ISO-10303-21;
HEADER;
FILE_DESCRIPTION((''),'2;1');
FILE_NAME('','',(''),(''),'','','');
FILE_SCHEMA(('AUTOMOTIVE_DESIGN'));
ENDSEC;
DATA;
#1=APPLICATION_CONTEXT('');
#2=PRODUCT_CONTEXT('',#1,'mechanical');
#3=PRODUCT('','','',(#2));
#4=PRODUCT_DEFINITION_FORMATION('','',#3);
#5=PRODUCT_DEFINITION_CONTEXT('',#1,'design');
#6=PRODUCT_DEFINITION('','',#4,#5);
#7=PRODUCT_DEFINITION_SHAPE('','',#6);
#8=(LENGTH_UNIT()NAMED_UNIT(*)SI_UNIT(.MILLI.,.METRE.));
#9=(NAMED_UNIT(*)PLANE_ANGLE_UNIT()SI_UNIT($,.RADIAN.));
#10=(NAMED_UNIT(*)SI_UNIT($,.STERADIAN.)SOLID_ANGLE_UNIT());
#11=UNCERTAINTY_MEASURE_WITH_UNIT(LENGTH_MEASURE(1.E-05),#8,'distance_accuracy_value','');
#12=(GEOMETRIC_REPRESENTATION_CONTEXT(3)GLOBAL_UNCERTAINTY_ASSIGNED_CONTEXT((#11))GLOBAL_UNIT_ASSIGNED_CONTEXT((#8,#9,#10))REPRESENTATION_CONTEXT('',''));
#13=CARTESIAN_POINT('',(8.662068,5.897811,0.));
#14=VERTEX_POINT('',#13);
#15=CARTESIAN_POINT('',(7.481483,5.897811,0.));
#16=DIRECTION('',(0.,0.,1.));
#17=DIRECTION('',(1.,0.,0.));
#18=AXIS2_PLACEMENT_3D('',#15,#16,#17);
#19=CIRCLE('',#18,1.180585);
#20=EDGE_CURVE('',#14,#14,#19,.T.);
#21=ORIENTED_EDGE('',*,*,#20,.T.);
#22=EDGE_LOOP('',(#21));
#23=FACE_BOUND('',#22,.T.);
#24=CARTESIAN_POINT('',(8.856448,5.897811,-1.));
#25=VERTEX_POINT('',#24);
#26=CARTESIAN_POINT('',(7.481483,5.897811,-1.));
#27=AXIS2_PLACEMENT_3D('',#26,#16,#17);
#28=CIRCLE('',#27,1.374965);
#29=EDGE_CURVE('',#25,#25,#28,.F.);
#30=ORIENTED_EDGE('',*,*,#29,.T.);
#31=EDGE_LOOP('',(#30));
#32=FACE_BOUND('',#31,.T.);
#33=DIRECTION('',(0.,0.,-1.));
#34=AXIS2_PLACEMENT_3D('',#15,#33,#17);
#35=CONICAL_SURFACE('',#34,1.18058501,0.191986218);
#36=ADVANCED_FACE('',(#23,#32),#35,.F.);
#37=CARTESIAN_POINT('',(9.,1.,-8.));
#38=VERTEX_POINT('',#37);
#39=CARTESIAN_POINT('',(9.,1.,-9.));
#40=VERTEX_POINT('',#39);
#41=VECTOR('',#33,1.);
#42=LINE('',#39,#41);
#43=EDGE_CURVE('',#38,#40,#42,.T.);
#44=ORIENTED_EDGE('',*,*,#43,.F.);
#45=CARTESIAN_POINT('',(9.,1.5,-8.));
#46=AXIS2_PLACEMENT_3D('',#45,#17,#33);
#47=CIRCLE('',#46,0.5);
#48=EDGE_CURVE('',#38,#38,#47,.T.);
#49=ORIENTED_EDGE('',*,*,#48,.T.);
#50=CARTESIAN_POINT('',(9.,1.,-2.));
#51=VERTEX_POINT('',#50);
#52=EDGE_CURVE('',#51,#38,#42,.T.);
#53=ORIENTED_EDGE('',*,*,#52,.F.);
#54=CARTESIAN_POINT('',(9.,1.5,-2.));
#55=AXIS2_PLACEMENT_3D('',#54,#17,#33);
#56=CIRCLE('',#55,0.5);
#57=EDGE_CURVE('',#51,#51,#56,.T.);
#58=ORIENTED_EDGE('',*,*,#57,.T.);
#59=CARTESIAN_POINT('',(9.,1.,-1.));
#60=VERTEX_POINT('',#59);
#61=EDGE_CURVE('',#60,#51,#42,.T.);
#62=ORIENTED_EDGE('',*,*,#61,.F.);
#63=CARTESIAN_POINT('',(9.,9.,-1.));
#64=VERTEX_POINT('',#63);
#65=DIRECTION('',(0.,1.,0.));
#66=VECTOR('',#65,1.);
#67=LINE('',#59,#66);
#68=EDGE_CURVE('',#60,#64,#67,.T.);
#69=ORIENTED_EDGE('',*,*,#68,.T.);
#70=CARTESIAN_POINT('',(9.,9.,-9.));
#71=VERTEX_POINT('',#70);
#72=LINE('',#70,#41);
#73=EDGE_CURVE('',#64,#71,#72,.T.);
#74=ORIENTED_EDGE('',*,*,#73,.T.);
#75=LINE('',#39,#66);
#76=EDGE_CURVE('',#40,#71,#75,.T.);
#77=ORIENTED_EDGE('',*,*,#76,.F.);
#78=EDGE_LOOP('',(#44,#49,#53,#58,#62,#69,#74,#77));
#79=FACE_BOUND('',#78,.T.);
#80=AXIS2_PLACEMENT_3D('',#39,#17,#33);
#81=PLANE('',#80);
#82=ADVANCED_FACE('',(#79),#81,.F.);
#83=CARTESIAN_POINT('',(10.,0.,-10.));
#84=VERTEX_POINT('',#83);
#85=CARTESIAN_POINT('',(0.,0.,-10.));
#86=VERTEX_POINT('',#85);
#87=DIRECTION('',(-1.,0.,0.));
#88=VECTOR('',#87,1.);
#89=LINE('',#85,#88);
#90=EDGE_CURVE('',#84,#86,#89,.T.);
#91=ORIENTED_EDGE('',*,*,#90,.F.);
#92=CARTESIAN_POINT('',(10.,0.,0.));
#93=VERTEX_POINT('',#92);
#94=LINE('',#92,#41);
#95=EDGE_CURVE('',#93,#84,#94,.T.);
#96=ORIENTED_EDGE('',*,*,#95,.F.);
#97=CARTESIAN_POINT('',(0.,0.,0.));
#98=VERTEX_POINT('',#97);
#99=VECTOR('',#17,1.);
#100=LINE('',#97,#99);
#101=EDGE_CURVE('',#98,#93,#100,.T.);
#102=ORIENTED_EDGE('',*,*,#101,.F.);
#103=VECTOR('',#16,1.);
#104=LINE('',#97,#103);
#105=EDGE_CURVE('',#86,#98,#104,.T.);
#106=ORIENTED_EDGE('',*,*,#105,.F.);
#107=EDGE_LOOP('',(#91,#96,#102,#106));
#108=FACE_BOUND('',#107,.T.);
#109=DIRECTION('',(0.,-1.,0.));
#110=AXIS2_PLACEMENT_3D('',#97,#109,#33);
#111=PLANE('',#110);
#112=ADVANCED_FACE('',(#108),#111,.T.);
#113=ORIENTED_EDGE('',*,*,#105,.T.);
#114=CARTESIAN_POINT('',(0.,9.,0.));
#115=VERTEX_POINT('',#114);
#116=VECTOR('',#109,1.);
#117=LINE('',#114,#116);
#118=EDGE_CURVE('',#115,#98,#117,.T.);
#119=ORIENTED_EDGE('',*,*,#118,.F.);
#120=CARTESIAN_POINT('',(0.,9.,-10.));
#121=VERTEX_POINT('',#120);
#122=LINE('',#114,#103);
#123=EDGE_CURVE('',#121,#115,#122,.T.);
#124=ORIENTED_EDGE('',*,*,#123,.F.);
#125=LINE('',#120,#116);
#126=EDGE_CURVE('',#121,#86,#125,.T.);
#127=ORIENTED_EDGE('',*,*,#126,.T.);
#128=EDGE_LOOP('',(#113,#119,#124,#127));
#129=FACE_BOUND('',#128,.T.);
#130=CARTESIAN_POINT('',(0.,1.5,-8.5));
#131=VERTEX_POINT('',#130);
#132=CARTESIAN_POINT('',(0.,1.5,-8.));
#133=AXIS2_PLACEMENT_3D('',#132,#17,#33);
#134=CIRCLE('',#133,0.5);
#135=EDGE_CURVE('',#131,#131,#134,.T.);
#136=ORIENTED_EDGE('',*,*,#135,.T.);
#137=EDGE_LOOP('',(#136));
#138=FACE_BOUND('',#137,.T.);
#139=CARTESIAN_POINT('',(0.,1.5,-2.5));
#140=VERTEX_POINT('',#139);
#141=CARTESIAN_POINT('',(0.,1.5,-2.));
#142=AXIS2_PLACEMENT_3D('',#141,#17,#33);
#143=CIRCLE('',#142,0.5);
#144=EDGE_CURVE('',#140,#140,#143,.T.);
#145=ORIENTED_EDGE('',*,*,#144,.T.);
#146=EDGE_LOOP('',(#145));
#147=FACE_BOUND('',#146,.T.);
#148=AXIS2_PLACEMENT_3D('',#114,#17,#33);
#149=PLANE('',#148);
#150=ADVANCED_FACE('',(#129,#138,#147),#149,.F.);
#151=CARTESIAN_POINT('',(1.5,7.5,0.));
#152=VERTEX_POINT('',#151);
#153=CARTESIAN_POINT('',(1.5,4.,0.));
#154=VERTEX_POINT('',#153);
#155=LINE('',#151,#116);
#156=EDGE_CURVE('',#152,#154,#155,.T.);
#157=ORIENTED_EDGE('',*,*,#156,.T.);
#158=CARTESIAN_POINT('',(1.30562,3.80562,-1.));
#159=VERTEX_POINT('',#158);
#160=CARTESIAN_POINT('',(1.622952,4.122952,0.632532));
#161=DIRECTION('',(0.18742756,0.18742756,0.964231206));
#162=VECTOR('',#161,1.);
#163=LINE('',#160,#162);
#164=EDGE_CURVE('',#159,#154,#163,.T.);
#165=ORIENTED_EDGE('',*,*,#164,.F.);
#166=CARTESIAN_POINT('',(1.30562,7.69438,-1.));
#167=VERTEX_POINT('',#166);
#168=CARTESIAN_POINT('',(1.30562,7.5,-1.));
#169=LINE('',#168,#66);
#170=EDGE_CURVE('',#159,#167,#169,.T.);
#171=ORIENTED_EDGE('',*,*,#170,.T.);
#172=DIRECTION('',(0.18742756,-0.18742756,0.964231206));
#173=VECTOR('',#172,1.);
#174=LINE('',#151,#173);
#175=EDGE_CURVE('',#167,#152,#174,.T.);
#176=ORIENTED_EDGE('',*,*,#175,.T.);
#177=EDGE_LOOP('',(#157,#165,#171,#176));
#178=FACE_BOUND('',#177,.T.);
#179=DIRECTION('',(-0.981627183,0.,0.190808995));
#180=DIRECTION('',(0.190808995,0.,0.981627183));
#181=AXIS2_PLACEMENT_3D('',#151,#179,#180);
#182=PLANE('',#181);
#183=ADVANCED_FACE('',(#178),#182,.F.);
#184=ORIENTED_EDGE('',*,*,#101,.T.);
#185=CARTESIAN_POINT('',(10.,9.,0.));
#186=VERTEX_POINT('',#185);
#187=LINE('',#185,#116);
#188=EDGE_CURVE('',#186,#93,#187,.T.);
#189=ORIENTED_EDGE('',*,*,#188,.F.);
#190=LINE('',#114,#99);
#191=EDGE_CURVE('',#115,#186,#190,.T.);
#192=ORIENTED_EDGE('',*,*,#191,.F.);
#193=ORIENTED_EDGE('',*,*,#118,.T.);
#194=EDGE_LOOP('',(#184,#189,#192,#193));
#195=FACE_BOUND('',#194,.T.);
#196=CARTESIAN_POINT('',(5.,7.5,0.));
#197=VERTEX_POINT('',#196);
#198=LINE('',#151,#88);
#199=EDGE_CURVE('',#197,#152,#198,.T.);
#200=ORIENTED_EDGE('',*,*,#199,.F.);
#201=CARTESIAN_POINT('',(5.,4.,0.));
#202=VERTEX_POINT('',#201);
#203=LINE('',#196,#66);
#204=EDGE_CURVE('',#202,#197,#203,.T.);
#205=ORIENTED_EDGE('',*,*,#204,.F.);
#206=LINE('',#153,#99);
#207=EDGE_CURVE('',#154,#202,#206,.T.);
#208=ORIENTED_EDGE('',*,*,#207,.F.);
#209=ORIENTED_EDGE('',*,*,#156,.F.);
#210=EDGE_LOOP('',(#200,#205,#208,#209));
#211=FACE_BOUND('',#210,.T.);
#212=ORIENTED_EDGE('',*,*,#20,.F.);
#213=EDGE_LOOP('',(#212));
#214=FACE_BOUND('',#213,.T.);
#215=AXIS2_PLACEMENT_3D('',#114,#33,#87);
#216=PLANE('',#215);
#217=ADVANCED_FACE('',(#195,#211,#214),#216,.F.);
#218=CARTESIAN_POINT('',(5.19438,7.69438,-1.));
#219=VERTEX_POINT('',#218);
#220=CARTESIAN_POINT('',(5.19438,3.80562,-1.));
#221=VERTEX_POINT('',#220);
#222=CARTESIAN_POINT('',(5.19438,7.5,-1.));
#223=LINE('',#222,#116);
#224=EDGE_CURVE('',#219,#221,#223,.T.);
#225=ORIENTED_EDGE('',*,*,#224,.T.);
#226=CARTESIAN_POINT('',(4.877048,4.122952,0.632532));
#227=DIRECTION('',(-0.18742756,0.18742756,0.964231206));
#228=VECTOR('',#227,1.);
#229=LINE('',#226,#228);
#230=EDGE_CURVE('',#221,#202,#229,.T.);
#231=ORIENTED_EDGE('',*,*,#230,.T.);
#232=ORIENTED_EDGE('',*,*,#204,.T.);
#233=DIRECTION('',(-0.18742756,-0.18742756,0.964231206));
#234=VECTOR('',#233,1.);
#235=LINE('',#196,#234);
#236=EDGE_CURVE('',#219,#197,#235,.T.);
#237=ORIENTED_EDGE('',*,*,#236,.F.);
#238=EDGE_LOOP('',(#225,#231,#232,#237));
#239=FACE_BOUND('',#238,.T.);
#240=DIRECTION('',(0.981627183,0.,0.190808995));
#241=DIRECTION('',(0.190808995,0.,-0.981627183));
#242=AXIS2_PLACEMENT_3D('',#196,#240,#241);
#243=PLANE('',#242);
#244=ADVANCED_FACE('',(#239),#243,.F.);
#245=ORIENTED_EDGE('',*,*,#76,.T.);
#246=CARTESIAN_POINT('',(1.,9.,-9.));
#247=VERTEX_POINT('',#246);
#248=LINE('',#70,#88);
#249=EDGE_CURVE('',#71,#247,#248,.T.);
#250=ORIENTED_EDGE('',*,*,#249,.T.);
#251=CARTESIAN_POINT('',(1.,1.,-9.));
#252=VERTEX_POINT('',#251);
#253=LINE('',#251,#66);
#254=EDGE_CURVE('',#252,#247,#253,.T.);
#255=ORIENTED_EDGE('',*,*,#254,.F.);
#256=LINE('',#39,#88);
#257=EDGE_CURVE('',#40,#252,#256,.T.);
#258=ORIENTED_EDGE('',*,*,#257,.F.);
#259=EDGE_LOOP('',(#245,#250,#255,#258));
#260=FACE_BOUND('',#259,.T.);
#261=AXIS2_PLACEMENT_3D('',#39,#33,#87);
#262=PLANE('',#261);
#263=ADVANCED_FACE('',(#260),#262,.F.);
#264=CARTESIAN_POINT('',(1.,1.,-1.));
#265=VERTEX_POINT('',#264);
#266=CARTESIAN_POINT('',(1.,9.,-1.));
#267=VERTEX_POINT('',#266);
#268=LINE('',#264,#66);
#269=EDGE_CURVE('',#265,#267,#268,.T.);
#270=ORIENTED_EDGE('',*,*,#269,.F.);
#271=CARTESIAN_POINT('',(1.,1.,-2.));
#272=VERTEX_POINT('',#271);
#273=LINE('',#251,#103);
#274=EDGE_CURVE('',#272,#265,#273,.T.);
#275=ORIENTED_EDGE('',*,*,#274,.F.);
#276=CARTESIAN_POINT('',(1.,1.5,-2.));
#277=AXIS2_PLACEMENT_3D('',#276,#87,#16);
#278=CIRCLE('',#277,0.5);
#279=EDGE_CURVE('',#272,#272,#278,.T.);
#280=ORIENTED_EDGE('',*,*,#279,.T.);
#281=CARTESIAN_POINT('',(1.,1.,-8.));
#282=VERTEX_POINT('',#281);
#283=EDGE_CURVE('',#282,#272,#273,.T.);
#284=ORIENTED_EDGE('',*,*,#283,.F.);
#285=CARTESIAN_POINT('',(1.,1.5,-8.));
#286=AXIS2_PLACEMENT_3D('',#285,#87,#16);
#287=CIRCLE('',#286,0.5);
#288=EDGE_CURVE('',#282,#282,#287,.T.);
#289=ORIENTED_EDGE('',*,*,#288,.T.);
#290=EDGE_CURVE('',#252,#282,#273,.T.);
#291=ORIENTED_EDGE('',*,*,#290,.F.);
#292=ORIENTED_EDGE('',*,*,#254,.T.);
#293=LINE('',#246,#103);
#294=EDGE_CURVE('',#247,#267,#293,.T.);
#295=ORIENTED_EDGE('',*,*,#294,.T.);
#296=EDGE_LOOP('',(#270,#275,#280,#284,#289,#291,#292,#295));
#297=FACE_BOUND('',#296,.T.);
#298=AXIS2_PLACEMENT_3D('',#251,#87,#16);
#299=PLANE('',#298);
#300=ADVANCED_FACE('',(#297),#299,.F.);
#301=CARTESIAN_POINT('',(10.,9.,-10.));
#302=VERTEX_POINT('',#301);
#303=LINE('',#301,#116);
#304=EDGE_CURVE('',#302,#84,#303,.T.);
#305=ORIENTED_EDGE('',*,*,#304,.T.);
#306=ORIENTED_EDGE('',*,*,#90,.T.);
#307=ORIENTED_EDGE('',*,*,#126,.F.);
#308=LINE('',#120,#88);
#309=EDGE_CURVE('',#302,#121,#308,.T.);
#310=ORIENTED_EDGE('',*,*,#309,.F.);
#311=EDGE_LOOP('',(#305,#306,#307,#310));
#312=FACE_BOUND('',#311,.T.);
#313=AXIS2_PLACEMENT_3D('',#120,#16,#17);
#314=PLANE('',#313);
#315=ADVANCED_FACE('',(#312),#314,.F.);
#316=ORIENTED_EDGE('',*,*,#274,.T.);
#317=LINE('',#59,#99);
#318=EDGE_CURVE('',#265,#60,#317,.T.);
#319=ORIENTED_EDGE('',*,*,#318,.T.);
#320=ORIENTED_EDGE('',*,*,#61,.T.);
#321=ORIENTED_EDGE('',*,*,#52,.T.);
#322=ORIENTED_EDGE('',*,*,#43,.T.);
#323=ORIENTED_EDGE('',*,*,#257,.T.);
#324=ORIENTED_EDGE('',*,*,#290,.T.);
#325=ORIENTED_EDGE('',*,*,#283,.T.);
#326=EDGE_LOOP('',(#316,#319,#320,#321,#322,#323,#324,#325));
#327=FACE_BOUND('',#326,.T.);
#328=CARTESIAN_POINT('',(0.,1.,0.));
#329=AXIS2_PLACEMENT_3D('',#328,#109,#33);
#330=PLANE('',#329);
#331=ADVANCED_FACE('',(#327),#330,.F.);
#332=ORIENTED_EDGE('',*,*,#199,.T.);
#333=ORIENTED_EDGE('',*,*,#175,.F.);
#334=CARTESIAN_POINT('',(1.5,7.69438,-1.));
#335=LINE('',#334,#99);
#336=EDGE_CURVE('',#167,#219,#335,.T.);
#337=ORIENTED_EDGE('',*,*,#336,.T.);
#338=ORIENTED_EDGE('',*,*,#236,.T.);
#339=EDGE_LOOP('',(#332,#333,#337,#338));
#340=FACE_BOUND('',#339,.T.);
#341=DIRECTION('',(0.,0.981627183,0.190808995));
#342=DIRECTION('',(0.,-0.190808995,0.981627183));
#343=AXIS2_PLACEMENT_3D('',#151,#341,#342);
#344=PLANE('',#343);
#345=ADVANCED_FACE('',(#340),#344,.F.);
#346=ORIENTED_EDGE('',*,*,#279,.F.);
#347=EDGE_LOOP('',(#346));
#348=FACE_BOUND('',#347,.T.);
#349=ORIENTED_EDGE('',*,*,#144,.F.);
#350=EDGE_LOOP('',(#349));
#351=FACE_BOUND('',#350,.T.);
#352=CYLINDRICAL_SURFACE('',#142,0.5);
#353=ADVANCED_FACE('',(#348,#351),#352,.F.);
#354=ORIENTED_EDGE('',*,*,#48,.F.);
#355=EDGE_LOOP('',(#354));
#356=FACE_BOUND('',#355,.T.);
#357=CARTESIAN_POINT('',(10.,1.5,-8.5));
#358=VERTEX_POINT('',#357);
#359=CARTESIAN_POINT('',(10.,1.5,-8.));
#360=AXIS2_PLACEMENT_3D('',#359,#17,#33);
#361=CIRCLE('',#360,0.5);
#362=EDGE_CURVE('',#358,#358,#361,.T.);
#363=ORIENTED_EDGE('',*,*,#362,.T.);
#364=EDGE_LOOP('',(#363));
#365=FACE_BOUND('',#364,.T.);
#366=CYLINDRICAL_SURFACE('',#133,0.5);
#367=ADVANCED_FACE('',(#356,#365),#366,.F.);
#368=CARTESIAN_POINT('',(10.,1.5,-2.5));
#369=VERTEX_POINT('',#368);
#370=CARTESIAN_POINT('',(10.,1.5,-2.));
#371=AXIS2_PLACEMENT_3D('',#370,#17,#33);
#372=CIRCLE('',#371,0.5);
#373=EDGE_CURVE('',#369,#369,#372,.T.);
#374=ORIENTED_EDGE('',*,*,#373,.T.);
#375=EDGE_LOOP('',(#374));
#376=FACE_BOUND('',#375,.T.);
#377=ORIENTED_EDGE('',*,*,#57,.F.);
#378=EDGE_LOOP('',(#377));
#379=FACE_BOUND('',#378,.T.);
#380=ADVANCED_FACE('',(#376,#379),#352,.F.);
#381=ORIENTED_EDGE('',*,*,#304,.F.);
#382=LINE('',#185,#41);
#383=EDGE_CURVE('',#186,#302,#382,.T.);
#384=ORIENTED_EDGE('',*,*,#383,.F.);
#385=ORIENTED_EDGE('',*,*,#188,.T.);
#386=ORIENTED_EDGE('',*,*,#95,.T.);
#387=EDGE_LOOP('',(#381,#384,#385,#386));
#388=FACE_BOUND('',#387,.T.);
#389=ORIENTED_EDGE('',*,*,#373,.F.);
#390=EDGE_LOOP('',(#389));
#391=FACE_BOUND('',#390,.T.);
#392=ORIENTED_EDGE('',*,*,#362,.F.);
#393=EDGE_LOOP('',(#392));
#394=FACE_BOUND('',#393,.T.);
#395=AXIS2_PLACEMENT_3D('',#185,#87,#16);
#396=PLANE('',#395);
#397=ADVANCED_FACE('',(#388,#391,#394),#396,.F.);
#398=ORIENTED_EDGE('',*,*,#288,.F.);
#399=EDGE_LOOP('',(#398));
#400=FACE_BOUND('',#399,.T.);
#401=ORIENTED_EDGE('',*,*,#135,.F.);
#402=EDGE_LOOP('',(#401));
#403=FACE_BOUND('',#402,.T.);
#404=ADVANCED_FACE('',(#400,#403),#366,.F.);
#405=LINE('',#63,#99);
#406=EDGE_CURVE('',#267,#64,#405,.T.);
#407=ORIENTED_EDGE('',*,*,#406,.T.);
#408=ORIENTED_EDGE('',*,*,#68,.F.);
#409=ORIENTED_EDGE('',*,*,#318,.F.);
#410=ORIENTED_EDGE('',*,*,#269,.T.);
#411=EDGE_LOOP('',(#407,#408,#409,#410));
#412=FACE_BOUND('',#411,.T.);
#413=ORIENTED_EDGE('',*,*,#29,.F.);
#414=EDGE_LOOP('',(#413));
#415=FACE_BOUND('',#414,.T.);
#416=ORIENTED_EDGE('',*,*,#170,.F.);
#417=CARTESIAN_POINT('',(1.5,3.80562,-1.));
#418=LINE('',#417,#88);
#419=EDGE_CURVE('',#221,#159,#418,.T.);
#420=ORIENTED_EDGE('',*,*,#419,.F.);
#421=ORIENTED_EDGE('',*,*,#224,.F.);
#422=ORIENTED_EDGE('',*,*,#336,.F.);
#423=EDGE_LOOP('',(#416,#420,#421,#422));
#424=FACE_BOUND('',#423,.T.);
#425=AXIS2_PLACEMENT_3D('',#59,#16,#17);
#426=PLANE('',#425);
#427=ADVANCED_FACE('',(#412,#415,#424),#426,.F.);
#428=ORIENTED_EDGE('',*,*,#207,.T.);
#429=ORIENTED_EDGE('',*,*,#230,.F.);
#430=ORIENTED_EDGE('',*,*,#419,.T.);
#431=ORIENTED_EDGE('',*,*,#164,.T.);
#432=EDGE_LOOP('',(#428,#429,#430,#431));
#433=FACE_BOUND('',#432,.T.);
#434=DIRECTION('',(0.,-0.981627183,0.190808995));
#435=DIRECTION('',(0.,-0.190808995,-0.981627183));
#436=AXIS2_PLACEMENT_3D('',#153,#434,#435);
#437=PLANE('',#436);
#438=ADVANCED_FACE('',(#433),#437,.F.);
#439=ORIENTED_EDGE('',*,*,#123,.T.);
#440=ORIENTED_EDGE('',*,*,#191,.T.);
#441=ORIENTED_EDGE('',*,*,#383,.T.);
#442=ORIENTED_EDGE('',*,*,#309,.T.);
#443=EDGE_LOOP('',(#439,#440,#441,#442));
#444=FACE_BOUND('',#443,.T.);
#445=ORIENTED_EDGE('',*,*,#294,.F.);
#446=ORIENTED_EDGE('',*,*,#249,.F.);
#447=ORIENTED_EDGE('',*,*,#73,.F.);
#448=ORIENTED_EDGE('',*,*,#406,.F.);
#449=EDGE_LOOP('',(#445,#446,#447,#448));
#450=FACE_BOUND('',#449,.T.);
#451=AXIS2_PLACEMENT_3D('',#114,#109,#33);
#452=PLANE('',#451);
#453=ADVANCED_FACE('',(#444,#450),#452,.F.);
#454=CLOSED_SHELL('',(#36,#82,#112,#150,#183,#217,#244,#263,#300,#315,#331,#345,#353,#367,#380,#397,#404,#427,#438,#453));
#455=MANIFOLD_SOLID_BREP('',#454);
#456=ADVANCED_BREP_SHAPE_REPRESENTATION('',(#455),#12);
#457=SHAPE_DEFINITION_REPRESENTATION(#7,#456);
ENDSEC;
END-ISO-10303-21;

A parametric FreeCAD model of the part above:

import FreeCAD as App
import Part
import Sketcher
Q = App.Units.Quantity


def faces_at(feature, points):
    """Names of the faces that lie closest to the given points."""
    faces = feature.Shape.Faces
    near = lambda p: min(range(len(faces)), key=lambda i: faces[i].distToShape(Part.Vertex(*p))[0])
    return sorted({f"Face{near(p) + 1}" for p in points})


def add_polygon(sketch, points):
    """Adds a closed chain of lines whose ends are joined by coincident constraints."""
    first, n = sketch.GeometryCount, len(points)
    for a, b in zip(points, points[1:] + points[:1]):
        sketch.addGeometry(Part.LineSegment(App.Vector(*a, 0), App.Vector(*b, 0)), False)
    for i in range(n):
        sketch.addConstraint(Sketcher.Constraint("Coincident", first + i, 2, first + (i + 1) % n, 1))

doc = App.newDocument("Part")
body = doc.addObject("PartDesign::Body", "Body")

sketch1 = doc.addObject("Sketcher::SketchObject", "Sketch")
body.addObject(sketch1)
sketch1.AttachmentSupport = (doc.XZ_Plane, [""])
sketch1.MapMode = "FlatFace"
add_polygon(sketch1, [(0, -10), (0, 0), (10, 0), (10, -10)])
sketch1.addConstraint([
    Sketcher.Constraint("Vertical", 0),
    Sketcher.Constraint("Horizontal", 1),
    Sketcher.Constraint("Vertical", 2),
    Sketcher.Constraint("Horizontal", 3),
    Sketcher.Constraint("Coincident", 0, 2, -1, 1),
    Sketcher.Constraint("Equal", 3, 0),
    Sketcher.Constraint("DistanceX", 1, 1, 1, 2, Q("10 mm")),
])
pad1 = doc.addObject("PartDesign::Pad", "Pad")
body.addObject(pad1)
pad1.Profile = sketch1
pad1.Length = 9
pad1.Reversed = True
body2 = doc.addObject("PartDesign::Body", "Body001")

sketch2 = doc.addObject("Sketcher::SketchObject", "Sketch001")
body2.addObject(sketch2)
sketch2.AttachmentSupport = (doc.getObject("XY_Plane001"), [""])
sketch2.MapMode = "FlatFace"
sketch2.addGeometry(Part.Circle(App.Vector(7.5, 5.9, 0), App.Vector(0, 0, 1), 1.2), False)
sketch2.addConstraint([
    Sketcher.Constraint("Diameter", 0, Q("2.36117 mm")),
    Sketcher.Constraint("DistanceY", -1, 1, 0, 3, Q("5.897811 mm")),
    Sketcher.Constraint("DistanceX", -1, 1, 0, 3, Q("7.481483 mm")),
])
pad2 = doc.addObject("PartDesign::Pad", "Pad001")
body2.addObject(pad2)
pad2.Profile = sketch2
pad2.Length = 1.25
pad2.Reversed = True
doc.recompute()

draft = doc.addObject("PartDesign::Draft", "Draft")
body2.addObject(draft)
draft.Base = (pad2, faces_at(pad2, [(6.301, 5.898, -0.625)]))
draft.NeutralPlane = (doc.getObject("XY_Plane001"), [""])
draft.Angle = 11
draft.Reversed = False
doc.recompute()

boolean = doc.addObject("PartDesign::Boolean", "Boolean")
body.addObject(boolean)
boolean.Type = "Cut"
boolean.addObjects([body2])
body3 = doc.addObject("PartDesign::Body", "Body002")

sketch3 = doc.addObject("Sketcher::SketchObject", "Sketch002")
body3.addObject(sketch3)
sketch3.AttachmentSupport = (doc.getObject("XY_Plane002"), [""])
sketch3.MapMode = "FlatFace"
add_polygon(sketch3, [(1.5, 7.5), (1.5, 4), (5, 4), (5, 7.5)])
sketch3.addConstraint([
    Sketcher.Constraint("Vertical", 0),
    Sketcher.Constraint("Horizontal", 1),
    Sketcher.Constraint("Vertical", 2),
    Sketcher.Constraint("Horizontal", 3),
    Sketcher.Constraint("Equal", 3, 0),
    Sketcher.Constraint("DistanceX", 1, 1, 1, 2, Q("3.5 mm")),
    Sketcher.Constraint("DistanceY", -1, 1, 0, 2, Q("4 mm")),
    Sketcher.Constraint("DistanceX", -1, 1, 1, 2, Q("5 mm")),
])
pad3 = doc.addObject("PartDesign::Pad", "Pad002")
body3.addObject(pad3)
pad3.Profile = sketch3
pad3.Length = 1.25
pad3.Reversed = True
doc.recompute()

draft2 = doc.addObject("PartDesign::Draft", "Draft001")
body3.addObject(draft2)
draft2.Base = (pad3, faces_at(pad3, [
    (1.5, 5.75, -0.625),
    (3.25, 4, -0.625),
    (5, 5.75, -0.625),
    (3.25, 7.5, -0.625),
]))
draft2.NeutralPlane = (doc.getObject("XY_Plane002"), [""])
draft2.Angle = 11
draft2.Reversed = False
doc.recompute()

boolean2 = doc.addObject("PartDesign::Boolean", "Boolean001")
body.addObject(boolean2)
boolean2.Type = "Cut"
boolean2.addObjects([body3])

sketch4 = doc.addObject("Sketcher::SketchObject", "Sketch003")
body.addObject(sketch4)
sketch4.AttachmentSupport = (doc.XZ_Plane, [""])
sketch4.MapMode = "FlatFace"
sketch4.AttachmentOffset = App.Placement(App.Vector(0, 0, -9), App.Rotation())
add_polygon(sketch4, [(1, -9), (1, -1), (9, -1), (9, -9)])
sketch4.addConstraint([
    Sketcher.Constraint("Vertical", 0),
    Sketcher.Constraint("Horizontal", 1),
    Sketcher.Constraint("Vertical", 2),
    Sketcher.Constraint("Horizontal", 3),
    Sketcher.Constraint("Equal", 3, 0),
    Sketcher.Constraint("DistanceX", 1, 1, 1, 2, Q("8 mm")),
    Sketcher.Constraint("DistanceX", -1, 1, 0, 2, Q("1 mm")),
    Sketcher.Constraint("DistanceY", 0, 2, -1, 1, Q("1 mm")),
])
pocket1 = doc.addObject("PartDesign::Pocket", "Pocket")
body.addObject(pocket1)
pocket1.Profile = sketch4
pocket1.Length = 8
pocket1.Reversed = True

sketch5 = doc.addObject("Sketcher::SketchObject", "Sketch004")
body.addObject(sketch5)
sketch5.AttachmentSupport = (doc.YZ_Plane, [""])
sketch5.MapMode = "FlatFace"
sketch5.AttachmentOffset = App.Placement(App.Vector(0, 0, 10), App.Rotation())
sketch5.addGeometry([
    Part.Circle(App.Vector(1.5, -2, 0), App.Vector(0, 0, 1), 0.5),
    Part.Circle(App.Vector(1.5, -8, 0), App.Vector(0, 0, 1), 0.5),
], False)
sketch5.addConstraint([
    Sketcher.Constraint("Equal", 0, 1),
    Sketcher.Constraint("Vertical", 0, 3, 1, 3),
    Sketcher.Constraint("Diameter", 0, Q("1 mm")),
    Sketcher.Constraint("DistanceY", 0, 3, -1, 1, Q("2 mm")),
    Sketcher.Constraint("DistanceY", 1, 3, -1, 1, Q("8 mm")),
    Sketcher.Constraint("DistanceX", -1, 1, 0, 3, Q("1.5 mm")),
])
pocket2 = doc.addObject("PartDesign::Pocket", "Pocket001")
body.addObject(pocket2)
pocket2.Profile = sketch5
pocket2.Type = "ThroughAll"

doc.recompute()
